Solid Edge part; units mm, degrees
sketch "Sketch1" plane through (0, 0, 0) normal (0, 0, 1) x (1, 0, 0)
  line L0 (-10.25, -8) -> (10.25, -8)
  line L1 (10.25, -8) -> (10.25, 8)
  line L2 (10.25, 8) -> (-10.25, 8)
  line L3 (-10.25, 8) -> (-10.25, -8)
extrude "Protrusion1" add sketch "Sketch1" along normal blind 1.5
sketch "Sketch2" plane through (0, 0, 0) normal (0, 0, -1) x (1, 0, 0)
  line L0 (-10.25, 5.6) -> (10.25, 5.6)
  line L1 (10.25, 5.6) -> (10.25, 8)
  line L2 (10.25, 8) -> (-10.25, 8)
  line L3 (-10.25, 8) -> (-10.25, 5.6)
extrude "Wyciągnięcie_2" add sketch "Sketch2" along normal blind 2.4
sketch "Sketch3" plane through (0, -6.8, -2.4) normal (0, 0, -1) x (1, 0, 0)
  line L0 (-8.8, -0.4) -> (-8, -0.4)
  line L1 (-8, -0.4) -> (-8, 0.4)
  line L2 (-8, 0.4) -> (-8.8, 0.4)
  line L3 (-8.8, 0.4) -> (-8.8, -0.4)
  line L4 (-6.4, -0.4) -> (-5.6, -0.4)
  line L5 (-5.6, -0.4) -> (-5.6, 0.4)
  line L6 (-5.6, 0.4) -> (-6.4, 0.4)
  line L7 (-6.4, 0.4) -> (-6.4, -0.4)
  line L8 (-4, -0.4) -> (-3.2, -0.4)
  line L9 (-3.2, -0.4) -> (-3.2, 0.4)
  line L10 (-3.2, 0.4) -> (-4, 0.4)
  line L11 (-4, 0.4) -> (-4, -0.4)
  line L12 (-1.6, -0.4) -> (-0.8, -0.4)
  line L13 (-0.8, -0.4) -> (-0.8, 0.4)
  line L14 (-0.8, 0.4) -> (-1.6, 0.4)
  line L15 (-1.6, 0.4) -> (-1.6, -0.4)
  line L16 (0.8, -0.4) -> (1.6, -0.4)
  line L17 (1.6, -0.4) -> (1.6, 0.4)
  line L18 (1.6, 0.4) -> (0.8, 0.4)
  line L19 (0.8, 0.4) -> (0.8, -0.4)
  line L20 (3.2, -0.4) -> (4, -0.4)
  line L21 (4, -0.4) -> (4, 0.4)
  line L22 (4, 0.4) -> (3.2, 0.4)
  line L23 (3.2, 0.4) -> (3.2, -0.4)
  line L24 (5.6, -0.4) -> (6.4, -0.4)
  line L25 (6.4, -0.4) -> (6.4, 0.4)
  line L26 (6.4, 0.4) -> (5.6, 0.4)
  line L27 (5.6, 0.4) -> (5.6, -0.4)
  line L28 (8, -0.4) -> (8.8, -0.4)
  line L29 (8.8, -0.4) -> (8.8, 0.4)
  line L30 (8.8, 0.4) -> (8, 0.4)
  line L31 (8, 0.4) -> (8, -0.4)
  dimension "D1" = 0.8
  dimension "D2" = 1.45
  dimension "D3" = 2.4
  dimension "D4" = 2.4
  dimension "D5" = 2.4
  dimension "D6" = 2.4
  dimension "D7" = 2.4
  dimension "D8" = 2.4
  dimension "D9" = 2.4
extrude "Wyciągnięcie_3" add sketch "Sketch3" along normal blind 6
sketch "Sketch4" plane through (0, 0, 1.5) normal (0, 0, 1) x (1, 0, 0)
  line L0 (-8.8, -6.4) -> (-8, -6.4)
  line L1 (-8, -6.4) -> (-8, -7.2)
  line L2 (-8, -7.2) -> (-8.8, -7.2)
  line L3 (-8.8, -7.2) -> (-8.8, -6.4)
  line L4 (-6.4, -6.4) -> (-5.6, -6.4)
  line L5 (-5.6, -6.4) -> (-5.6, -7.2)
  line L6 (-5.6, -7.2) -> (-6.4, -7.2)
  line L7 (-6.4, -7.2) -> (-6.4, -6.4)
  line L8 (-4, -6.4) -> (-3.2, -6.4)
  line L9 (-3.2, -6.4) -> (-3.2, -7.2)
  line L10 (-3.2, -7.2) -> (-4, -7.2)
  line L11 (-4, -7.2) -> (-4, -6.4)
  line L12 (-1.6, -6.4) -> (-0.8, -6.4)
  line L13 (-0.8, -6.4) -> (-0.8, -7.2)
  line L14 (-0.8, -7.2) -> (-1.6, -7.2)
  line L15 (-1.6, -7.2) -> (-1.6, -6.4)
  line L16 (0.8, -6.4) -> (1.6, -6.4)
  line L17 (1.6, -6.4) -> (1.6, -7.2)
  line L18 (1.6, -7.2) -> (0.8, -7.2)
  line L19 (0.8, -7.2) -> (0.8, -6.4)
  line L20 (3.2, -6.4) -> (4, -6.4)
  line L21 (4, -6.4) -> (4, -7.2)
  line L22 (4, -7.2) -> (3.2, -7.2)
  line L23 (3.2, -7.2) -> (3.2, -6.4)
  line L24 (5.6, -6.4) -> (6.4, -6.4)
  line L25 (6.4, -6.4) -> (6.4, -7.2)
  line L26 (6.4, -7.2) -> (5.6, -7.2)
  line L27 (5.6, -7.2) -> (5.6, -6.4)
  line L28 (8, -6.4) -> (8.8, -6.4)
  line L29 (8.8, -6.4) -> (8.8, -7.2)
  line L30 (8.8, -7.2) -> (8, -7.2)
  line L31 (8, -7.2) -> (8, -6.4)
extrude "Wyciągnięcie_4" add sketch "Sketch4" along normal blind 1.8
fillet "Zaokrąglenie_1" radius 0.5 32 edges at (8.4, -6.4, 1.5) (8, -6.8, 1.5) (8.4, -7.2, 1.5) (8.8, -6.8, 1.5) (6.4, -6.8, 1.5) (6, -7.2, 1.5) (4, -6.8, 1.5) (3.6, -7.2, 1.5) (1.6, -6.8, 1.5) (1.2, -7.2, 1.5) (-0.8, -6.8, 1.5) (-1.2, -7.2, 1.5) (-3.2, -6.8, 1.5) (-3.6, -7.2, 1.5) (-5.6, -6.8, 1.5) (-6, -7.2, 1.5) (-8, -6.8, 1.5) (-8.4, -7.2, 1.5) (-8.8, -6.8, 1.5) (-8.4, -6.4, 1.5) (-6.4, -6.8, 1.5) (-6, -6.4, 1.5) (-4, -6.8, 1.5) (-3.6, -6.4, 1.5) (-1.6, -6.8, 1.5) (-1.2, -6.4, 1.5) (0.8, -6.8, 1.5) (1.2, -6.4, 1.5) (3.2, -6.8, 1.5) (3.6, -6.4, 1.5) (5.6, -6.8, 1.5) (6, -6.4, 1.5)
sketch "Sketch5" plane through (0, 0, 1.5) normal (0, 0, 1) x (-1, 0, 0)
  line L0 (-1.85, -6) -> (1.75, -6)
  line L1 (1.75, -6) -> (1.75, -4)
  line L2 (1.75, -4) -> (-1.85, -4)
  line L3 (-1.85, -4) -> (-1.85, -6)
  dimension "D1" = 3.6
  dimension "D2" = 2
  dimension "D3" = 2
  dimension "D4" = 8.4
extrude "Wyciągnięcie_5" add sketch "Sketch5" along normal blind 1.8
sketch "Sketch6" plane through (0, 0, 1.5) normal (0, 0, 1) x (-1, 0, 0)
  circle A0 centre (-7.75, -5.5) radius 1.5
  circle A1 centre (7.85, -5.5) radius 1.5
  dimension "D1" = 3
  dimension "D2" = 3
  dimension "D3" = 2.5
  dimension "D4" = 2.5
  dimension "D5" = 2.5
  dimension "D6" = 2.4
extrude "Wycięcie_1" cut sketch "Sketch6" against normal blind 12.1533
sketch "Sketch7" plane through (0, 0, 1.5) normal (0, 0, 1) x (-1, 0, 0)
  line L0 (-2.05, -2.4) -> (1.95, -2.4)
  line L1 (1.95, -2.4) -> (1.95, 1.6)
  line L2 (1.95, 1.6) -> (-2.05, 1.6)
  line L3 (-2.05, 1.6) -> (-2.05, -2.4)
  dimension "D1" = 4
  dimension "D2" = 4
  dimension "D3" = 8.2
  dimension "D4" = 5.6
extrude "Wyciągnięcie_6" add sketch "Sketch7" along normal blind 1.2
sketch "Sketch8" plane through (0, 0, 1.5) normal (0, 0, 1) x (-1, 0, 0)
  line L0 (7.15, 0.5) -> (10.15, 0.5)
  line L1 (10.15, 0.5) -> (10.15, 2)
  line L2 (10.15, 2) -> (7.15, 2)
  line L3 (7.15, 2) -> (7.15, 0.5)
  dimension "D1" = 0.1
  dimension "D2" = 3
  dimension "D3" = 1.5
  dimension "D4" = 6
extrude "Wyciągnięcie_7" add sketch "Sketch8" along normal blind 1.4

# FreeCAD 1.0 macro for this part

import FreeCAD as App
import Part
import Sketcher
Q = App.Units.Quantity


def edges_at(feature, points):
    """Names of the edges that pass closest to the given points."""
    edges = feature.Shape.Edges
    near = lambda p: min(range(len(edges)), key=lambda i: edges[i].distToShape(Part.Vertex(*p))[0])
    return sorted({f"Edge{near(p) + 1}" for p in points})

doc = App.newDocument("Part")
params = doc.addObject("Spreadsheet::Sheet", "Params")
for row, (alias, value) in enumerate([
    ("sketch1_height", "16 mm"),
    ("sketch1_width", "20.5 mm"),
    ("pad1_length", "1.5 mm"),
    ("sketch2_width", "20.5 mm"),
    ("sketch2_height", "2.4 mm"),
    ("pad2_length", "2.4 mm"),
    ("sketch3_width", "0.8 mm"),
    ("pad3_length", "6 mm"),
    ("sketch4_width", "0.8 mm"),
    ("pad4_length", "1.8 mm"),
    ("fillet_radius", "0.5 mm"),
    ("sketch5_height", "2 mm"),
    ("pad5_length", "1.8 mm"),
    ("sketch6_diameter", "3 mm"),
    ("pocket1_length", "12.1533 mm"),
    ("sketch7_width", "4 mm"),
    ("pad6_length", "1.2 mm"),
    ("sketch8_width", "3 mm"),
    ("sketch8_height", "1.5 mm"),
    ("pad7_length", "1.4 mm"),
], start=1):
    params.set(f"A{row}", alias)
    params.set(f"B{row}", "=" + value)
    params.setAlias(f"B{row}", alias)

body = doc.addObject("PartDesign::Body", "Body")

sketch1 = body.newObject("Sketcher::SketchObject", "Sketch")
sketch1.AttachmentSupport = (doc.getObject("XY_Plane"), [""])
sketch1.MapMode = "FlatFace"
sketch1.addGeometry([
    Part.LineSegment(App.Vector(-10.25, 8, 0), App.Vector(-10.25, -8, 0)),
    Part.LineSegment(App.Vector(-10.25, -8, 0), App.Vector(10.25, -8, 0)),
    Part.LineSegment(App.Vector(10.25, -8, 0), App.Vector(10.25, 8, 0)),
    Part.LineSegment(App.Vector(10.25, 8, 0), App.Vector(-10.25, 8, 0)),
], False)
sketch1.addConstraint([
    Sketcher.Constraint("Coincident", 0, 2, 1, 1),
    Sketcher.Constraint("Coincident", 1, 2, 2, 1),
    Sketcher.Constraint("Coincident", 2, 2, 3, 1),
    Sketcher.Constraint("Coincident", 3, 2, 0, 1),
    Sketcher.Constraint("Vertical", 0),
    Sketcher.Constraint("Horizontal", 1),
    Sketcher.Constraint("Vertical", 2),
    Sketcher.Constraint("Horizontal", 3),
    Sketcher.Constraint("Symmetric", 0, 2, 2, 2, -1, 1),
    Sketcher.Constraint("DistanceY", 0, 2, 0, 1, Q("16 mm")),
    Sketcher.Constraint("DistanceX", 1, 1, 1, 2, Q("20.5 mm")),
])
sketch1.setExpression("Constraints[9]", "Params.sketch1_height")
sketch1.setExpression("Constraints[10]", "Params.sketch1_width")
pad1 = body.newObject("PartDesign::Pad", "Pad")
pad1.Profile = sketch1
pad1.setExpression("Length", "Params.pad1_length")

sketch2 = body.newObject("Sketcher::SketchObject", "Sketch001")
sketch2.AttachmentSupport = (doc.getObject("XY_Plane"), [""])
sketch2.MapMode = "FlatFace"
sketch2.addGeometry([
    Part.LineSegment(App.Vector(-10.25, -8, 0), App.Vector(-10.25, -5.6, 0)),
    Part.LineSegment(App.Vector(-10.25, -5.6, 0), App.Vector(10.25, -5.6, 0)),
    Part.LineSegment(App.Vector(10.25, -5.6, 0), App.Vector(10.25, -8, 0)),
    Part.LineSegment(App.Vector(10.25, -8, 0), App.Vector(-10.25, -8, 0)),
], False)
sketch2.addConstraint([
    Sketcher.Constraint("Coincident", 0, 2, 1, 1),
    Sketcher.Constraint("Coincident", 1, 2, 2, 1),
    Sketcher.Constraint("Coincident", 2, 2, 3, 1),
    Sketcher.Constraint("Coincident", 3, 2, 0, 1),
    Sketcher.Constraint("Vertical", 0),
    Sketcher.Constraint("Horizontal", 1),
    Sketcher.Constraint("Vertical", 2),
    Sketcher.Constraint("Horizontal", 3),
    Sketcher.Constraint("DistanceX", 1, 1, 1, 2, Q("20.5 mm")),
    Sketcher.Constraint("DistanceY", 0, 1, 0, 2, Q("2.4 mm")),
    Sketcher.Constraint("DistanceY", 2, 2, -1, 1, Q("8 mm")),
    Sketcher.Constraint("DistanceX", 0, 2, -1, 1, Q("10.25 mm")),
])
sketch2.setExpression("Constraints[8]", "Params.sketch2_width")
sketch2.setExpression("Constraints[9]", "Params.sketch2_height")
pad2 = body.newObject("PartDesign::Pad", "Pad001")
pad2.Profile = sketch2
pad2.setExpression("Length", "Params.pad2_length")
pad2.Reversed = True

sketch3 = body.newObject("Sketcher::SketchObject", "Sketch002")
sketch3.AttachmentSupport = (doc.getObject("XY_Plane"), [""])
sketch3.MapMode = "FlatFace"
sketch3.AttachmentOffset = App.Placement(App.Vector(0, 0, -2.4), App.Rotation())
sketch3.addGeometry([
    Part.LineSegment(App.Vector(-8.8, -7.2, 0), App.Vector(-8.8, -6.4, 0)),
    Part.LineSegment(App.Vector(-8.8, -6.4, 0), App.Vector(-8, -6.4, 0)),
    Part.LineSegment(App.Vector(-8, -6.4, 0), App.Vector(-8, -7.2, 0)),
    Part.LineSegment(App.Vector(-8, -7.2, 0), App.Vector(-8.8, -7.2, 0)),
    Part.LineSegment(App.Vector(-6.4, -7.2, 0), App.Vector(-6.4, -6.4, 0)),
    Part.LineSegment(App.Vector(-6.4, -6.4, 0), App.Vector(-5.6, -6.4, 0)),
    Part.LineSegment(App.Vector(-5.6, -6.4, 0), App.Vector(-5.6, -7.2, 0)),
    Part.LineSegment(App.Vector(-5.6, -7.2, 0), App.Vector(-6.4, -7.2, 0)),
    Part.LineSegment(App.Vector(-4, -7.2, 0), App.Vector(-4, -6.4, 0)),
    Part.LineSegment(App.Vector(-4, -6.4, 0), App.Vector(-3.2, -6.4, 0)),
    Part.LineSegment(App.Vector(-3.2, -6.4, 0), App.Vector(-3.2, -7.2, 0)),
    Part.LineSegment(App.Vector(-3.2, -7.2, 0), App.Vector(-4, -7.2, 0)),
    Part.LineSegment(App.Vector(-1.6, -7.2, 0), App.Vector(-1.6, -6.4, 0)),
    Part.LineSegment(App.Vector(-1.6, -6.4, 0), App.Vector(-0.8, -6.4, 0)),
    Part.LineSegment(App.Vector(-0.8, -6.4, 0), App.Vector(-0.8, -7.2, 0)),
    Part.LineSegment(App.Vector(-0.8, -7.2, 0), App.Vector(-1.6, -7.2, 0)),
    Part.LineSegment(App.Vector(0.8, -7.2, 0), App.Vector(0.8, -6.4, 0)),
    Part.LineSegment(App.Vector(0.8, -6.4, 0), App.Vector(1.6, -6.4, 0)),
    Part.LineSegment(App.Vector(1.6, -6.4, 0), App.Vector(1.6, -7.2, 0)),
    Part.LineSegment(App.Vector(1.6, -7.2, 0), App.Vector(0.8, -7.2, 0)),
    Part.LineSegment(App.Vector(3.2, -7.2, 0), App.Vector(3.2, -6.4, 0)),
    Part.LineSegment(App.Vector(3.2, -6.4, 0), App.Vector(4, -6.4, 0)),
    Part.LineSegment(App.Vector(4, -6.4, 0), App.Vector(4, -7.2, 0)),
    Part.LineSegment(App.Vector(4, -7.2, 0), App.Vector(3.2, -7.2, 0)),
    Part.LineSegment(App.Vector(5.6, -7.2, 0), App.Vector(5.6, -6.4, 0)),
    Part.LineSegment(App.Vector(5.6, -6.4, 0), App.Vector(6.4, -6.4, 0)),
    Part.LineSegment(App.Vector(6.4, -6.4, 0), App.Vector(6.4, -7.2, 0)),
    Part.LineSegment(App.Vector(6.4, -7.2, 0), App.Vector(5.6, -7.2, 0)),
    Part.LineSegment(App.Vector(8, -7.2, 0), App.Vector(8, -6.4, 0)),
    Part.LineSegment(App.Vector(8, -6.4, 0), App.Vector(8.8, -6.4, 0)),
    Part.LineSegment(App.Vector(8.8, -6.4, 0), App.Vector(8.8, -7.2, 0)),
    Part.LineSegment(App.Vector(8.8, -7.2, 0), App.Vector(8, -7.2, 0)),
], False)
sketch3.addConstraint([
    Sketcher.Constraint("Coincident", 0, 2, 1, 1),
    Sketcher.Constraint("Coincident", 1, 2, 2, 1),
    Sketcher.Constraint("Coincident", 2, 2, 3, 1),
    Sketcher.Constraint("Coincident", 3, 2, 0, 1),
    Sketcher.Constraint("Coincident", 4, 2, 5, 1),
    Sketcher.Constraint("Coincident", 5, 2, 6, 1),
    Sketcher.Constraint("Coincident", 6, 2, 7, 1),
    Sketcher.Constraint("Coincident", 7, 2, 4, 1),
    Sketcher.Constraint("Coincident", 8, 2, 9, 1),
    Sketcher.Constraint("Coincident", 9, 2, 10, 1),
    Sketcher.Constraint("Coincident", 10, 2, 11, 1),
    Sketcher.Constraint("Coincident", 11, 2, 8, 1),
    Sketcher.Constraint("Coincident", 12, 2, 13, 1),
    Sketcher.Constraint("Coincident", 13, 2, 14, 1),
    Sketcher.Constraint("Coincident", 14, 2, 15, 1),
    Sketcher.Constraint("Coincident", 15, 2, 12, 1),
    Sketcher.Constraint("Coincident", 16, 2, 17, 1),
    Sketcher.Constraint("Coincident", 17, 2, 18, 1),
    Sketcher.Constraint("Coincident", 18, 2, 19, 1),
    Sketcher.Constraint("Coincident", 19, 2, 16, 1),
    Sketcher.Constraint("Coincident", 20, 2, 21, 1),
    Sketcher.Constraint("Coincident", 21, 2, 22, 1),
    Sketcher.Constraint("Coincident", 22, 2, 23, 1),
    Sketcher.Constraint("Coincident", 23, 2, 20, 1),
    Sketcher.Constraint("Coincident", 24, 2, 25, 1),
    Sketcher.Constraint("Coincident", 25, 2, 26, 1),
    Sketcher.Constraint("Coincident", 26, 2, 27, 1),
    Sketcher.Constraint("Coincident", 27, 2, 24, 1),
    Sketcher.Constraint("Coincident", 28, 2, 29, 1),
    Sketcher.Constraint("Coincident", 29, 2, 30, 1),
    Sketcher.Constraint("Coincident", 30, 2, 31, 1),
    Sketcher.Constraint("Coincident", 31, 2, 28, 1),
    Sketcher.Constraint("Vertical", 0),
    Sketcher.Constraint("Horizontal", 1),
    Sketcher.Constraint("Vertical", 2),
    Sketcher.Constraint("Horizontal", 3),
    Sketcher.Constraint("Vertical", 4),
    Sketcher.Constraint("Horizontal", 5),
    Sketcher.Constraint("Vertical", 6),
    Sketcher.Constraint("Horizontal", 7),
    Sketcher.Constraint("Vertical", 8),
    Sketcher.Constraint("Horizontal", 9),
    Sketcher.Constraint("Vertical", 10),
    Sketcher.Constraint("Horizontal", 11),
    Sketcher.Constraint("Vertical", 12),
    Sketcher.Constraint("Horizontal", 13),
    Sketcher.Constraint("Vertical", 14),
    Sketcher.Constraint("Horizontal", 15),
    Sketcher.Constraint("Vertical", 16),
    Sketcher.Constraint("Horizontal", 17),
    Sketcher.Constraint("Vertical", 18),
    Sketcher.Constraint("Horizontal", 19),
    Sketcher.Constraint("Vertical", 20),
    Sketcher.Constraint("Horizontal", 21),
    Sketcher.Constraint("Vertical", 22),
    Sketcher.Constraint("Horizontal", 23),
    Sketcher.Constraint("Vertical", 24),
    Sketcher.Constraint("Horizontal", 25),
    Sketcher.Constraint("Vertical", 26),
    Sketcher.Constraint("Horizontal", 27),
    Sketcher.Constraint("Vertical", 28),
    Sketcher.Constraint("Horizontal", 29),
    Sketcher.Constraint("Vertical", 30),
    Sketcher.Constraint("Horizontal", 31),
    Sketcher.Constraint("Symmetric", 13, 2, 16, 2, -2),
    Sketcher.Constraint("Symmetric", 15, 2, 18, 2, -2),
    Sketcher.Constraint("Symmetric", 9, 2, 20, 2, -2),
    Sketcher.Constraint("Symmetric", 11, 2, 22, 2, -2),
    Sketcher.Constraint("Symmetric", 5, 2, 24, 2, -2),
    Sketcher.Constraint("Symmetric", 7, 2, 26, 2, -2),
    Sketcher.Constraint("Symmetric", 1, 2, 28, 2, -2),
    Sketcher.Constraint("Symmetric", 3, 2, 30, 2, -2),
    Sketcher.Constraint("Horizontal", 1, 2, 4, 2),
    Sketcher.Constraint("Horizontal", 3, 2, 6, 2),
    Sketcher.Constraint("Horizontal", 5, 2, 8, 2),
    Sketcher.Constraint("Horizontal", 7, 2, 10, 2),
    Sketcher.Constraint("Horizontal", 9, 2, 12, 2),
    Sketcher.Constraint("Horizontal", 11, 2, 14, 2),
    Sketcher.Constraint("Equal", 3, 5),
    Sketcher.Constraint("Equal", 7, 9),
    Sketcher.Constraint("Equal", 11, 13),
    Sketcher.Constraint("Equal", 31, 0),
    Sketcher.Constraint("DistanceX", 1, 1, 1, 2, Q("0.8 mm")),
    Sketcher.Constraint("DistanceX", 1, 2, -1, 1, Q("8 mm")),
    Sketcher.Constraint("DistanceX", 8, 2, -1, 1, Q("4 mm")),
    Sketcher.Constraint("DistanceX", 5, 2, 12, 2, Q("4 mm")),
    Sketcher.Constraint("DistanceX", 9, 2, 16, 2, Q("4 mm")),
    Sketcher.Constraint("DistanceY", 0, 2, -1, 1, Q("6.4 mm")),
])
sketch3.setExpression("Constraints[82]", "Params.sketch3_width")
pad3 = body.newObject("PartDesign::Pad", "Pad002")
pad3.Profile = sketch3
pad3.setExpression("Length", "Params.pad3_length")
pad3.Reversed = True

sketch4 = body.newObject("Sketcher::SketchObject", "Sketch003")
sketch4.AttachmentSupport = (doc.getObject("XY_Plane"), [""])
sketch4.MapMode = "FlatFace"
sketch4.AttachmentOffset = App.Placement(App.Vector(0, 0, 1.5), App.Rotation())
sketch4.addGeometry([
    Part.LineSegment(App.Vector(-8, -6.4, 0), App.Vector(-8.8, -6.4, 0)),
    Part.LineSegment(App.Vector(-8.8, -6.4, 0), App.Vector(-8.8, -7.2, 0)),
    Part.LineSegment(App.Vector(-8.8, -7.2, 0), App.Vector(-8, -7.2, 0)),
    Part.LineSegment(App.Vector(-8, -7.2, 0), App.Vector(-8, -6.4, 0)),
    Part.LineSegment(App.Vector(-5.6, -6.4, 0), App.Vector(-6.4, -6.4, 0)),
    Part.LineSegment(App.Vector(-6.4, -6.4, 0), App.Vector(-6.4, -7.2, 0)),
    Part.LineSegment(App.Vector(-6.4, -7.2, 0), App.Vector(-5.6, -7.2, 0)),
    Part.LineSegment(App.Vector(-5.6, -7.2, 0), App.Vector(-5.6, -6.4, 0)),
    Part.LineSegment(App.Vector(-3.2, -6.4, 0), App.Vector(-4, -6.4, 0)),
    Part.LineSegment(App.Vector(-4, -6.4, 0), App.Vector(-4, -7.2, 0)),
    Part.LineSegment(App.Vector(-4, -7.2, 0), App.Vector(-3.2, -7.2, 0)),
    Part.LineSegment(App.Vector(-3.2, -7.2, 0), App.Vector(-3.2, -6.4, 0)),
    Part.LineSegment(App.Vector(-0.8, -6.4, 0), App.Vector(-1.6, -6.4, 0)),
    Part.LineSegment(App.Vector(-1.6, -6.4, 0), App.Vector(-1.6, -7.2, 0)),
    Part.LineSegment(App.Vector(-1.6, -7.2, 0), App.Vector(-0.8, -7.2, 0)),
    Part.LineSegment(App.Vector(-0.8, -7.2, 0), App.Vector(-0.8, -6.4, 0)),
    Part.LineSegment(App.Vector(1.6, -6.4, 0), App.Vector(0.8, -6.4, 0)),
    Part.LineSegment(App.Vector(0.8, -6.4, 0), App.Vector(0.8, -7.2, 0)),
    Part.LineSegment(App.Vector(0.8, -7.2, 0), App.Vector(1.6, -7.2, 0)),
    Part.LineSegment(App.Vector(1.6, -7.2, 0), App.Vector(1.6, -6.4, 0)),
    Part.LineSegment(App.Vector(4, -6.4, 0), App.Vector(3.2, -6.4, 0)),
    Part.LineSegment(App.Vector(3.2, -6.4, 0), App.Vector(3.2, -7.2, 0)),
    Part.LineSegment(App.Vector(3.2, -7.2, 0), App.Vector(4, -7.2, 0)),
    Part.LineSegment(App.Vector(4, -7.2, 0), App.Vector(4, -6.4, 0)),
    Part.LineSegment(App.Vector(6.4, -6.4, 0), App.Vector(5.6, -6.4, 0)),
    Part.LineSegment(App.Vector(5.6, -6.4, 0), App.Vector(5.6, -7.2, 0)),
    Part.LineSegment(App.Vector(5.6, -7.2, 0), App.Vector(6.4, -7.2, 0)),
    Part.LineSegment(App.Vector(6.4, -7.2, 0), App.Vector(6.4, -6.4, 0)),
    Part.LineSegment(App.Vector(8.8, -6.4, 0), App.Vector(8, -6.4, 0)),
    Part.LineSegment(App.Vector(8, -6.4, 0), App.Vector(8, -7.2, 0)),
    Part.LineSegment(App.Vector(8, -7.2, 0), App.Vector(8.8, -7.2, 0)),
    Part.LineSegment(App.Vector(8.8, -7.2, 0), App.Vector(8.8, -6.4, 0)),
], False)
sketch4.addConstraint([
    Sketcher.Constraint("Coincident", 0, 2, 1, 1),
    Sketcher.Constraint("Coincident", 1, 2, 2, 1),
    Sketcher.Constraint("Coincident", 2, 2, 3, 1),
    Sketcher.Constraint("Coincident", 3, 2, 0, 1),
    Sketcher.Constraint("Coincident", 4, 2, 5, 1),
    Sketcher.Constraint("Coincident", 5, 2, 6, 1),
    Sketcher.Constraint("Coincident", 6, 2, 7, 1),
    Sketcher.Constraint("Coincident", 7, 2, 4, 1),
    Sketcher.Constraint("Coincident", 8, 2, 9, 1),
    Sketcher.Constraint("Coincident", 9, 2, 10, 1),
    Sketcher.Constraint("Coincident", 10, 2, 11, 1),
    Sketcher.Constraint("Coincident", 11, 2, 8, 1),
    Sketcher.Constraint("Coincident", 12, 2, 13, 1),
    Sketcher.Constraint("Coincident", 13, 2, 14, 1),
    Sketcher.Constraint("Coincident", 14, 2, 15, 1),
    Sketcher.Constraint("Coincident", 15, 2, 12, 1),
    Sketcher.Constraint("Coincident", 16, 2, 17, 1),
    Sketcher.Constraint("Coincident", 17, 2, 18, 1),
    Sketcher.Constraint("Coincident", 18, 2, 19, 1),
    Sketcher.Constraint("Coincident", 19, 2, 16, 1),
    Sketcher.Constraint("Coincident", 20, 2, 21, 1),
    Sketcher.Constraint("Coincident", 21, 2, 22, 1),
    Sketcher.Constraint("Coincident", 22, 2, 23, 1),
    Sketcher.Constraint("Coincident", 23, 2, 20, 1),
    Sketcher.Constraint("Coincident", 24, 2, 25, 1),
    Sketcher.Constraint("Coincident", 25, 2, 26, 1),
    Sketcher.Constraint("Coincident", 26, 2, 27, 1),
    Sketcher.Constraint("Coincident", 27, 2, 24, 1),
    Sketcher.Constraint("Coincident", 28, 2, 29, 1),
    Sketcher.Constraint("Coincident", 29, 2, 30, 1),
    Sketcher.Constraint("Coincident", 30, 2, 31, 1),
    Sketcher.Constraint("Coincident", 31, 2, 28, 1),
    Sketcher.Constraint("Horizontal", 0),
    Sketcher.Constraint("Vertical", 1),
    Sketcher.Constraint("Horizontal", 2),
    Sketcher.Constraint("Vertical", 3),
    Sketcher.Constraint("Horizontal", 4),
    Sketcher.Constraint("Vertical", 5),
    Sketcher.Constraint("Horizontal", 6),
    Sketcher.Constraint("Vertical", 7),
    Sketcher.Constraint("Horizontal", 8),
    Sketcher.Constraint("Vertical", 9),
    Sketcher.Constraint("Horizontal", 10),
    Sketcher.Constraint("Vertical", 11),
    Sketcher.Constraint("Horizontal", 12),
    Sketcher.Constraint("Vertical", 13),
    Sketcher.Constraint("Horizontal", 14),
    Sketcher.Constraint("Vertical", 15),
    Sketcher.Constraint("Horizontal", 16),
    Sketcher.Constraint("Vertical", 17),
    Sketcher.Constraint("Horizontal", 18),
    Sketcher.Constraint("Vertical", 19),
    Sketcher.Constraint("Horizontal", 20),
    Sketcher.Constraint("Vertical", 21),
    Sketcher.Constraint("Horizontal", 22),
    Sketcher.Constraint("Vertical", 23),
    Sketcher.Constraint("Horizontal", 24),
    Sketcher.Constraint("Vertical", 25),
    Sketcher.Constraint("Horizontal", 26),
    Sketcher.Constraint("Vertical", 27),
    Sketcher.Constraint("Horizontal", 28),
    Sketcher.Constraint("Vertical", 29),
    Sketcher.Constraint("Horizontal", 30),
    Sketcher.Constraint("Vertical", 31),
    Sketcher.Constraint("Symmetric", 15, 2, 16, 2, -2),
    Sketcher.Constraint("Symmetric", 13, 2, 18, 2, -2),
    Sketcher.Constraint("Symmetric", 11, 2, 20, 2, -2),
    Sketcher.Constraint("Symmetric", 9, 2, 22, 2, -2),
    Sketcher.Constraint("Symmetric", 7, 2, 24, 2, -2),
    Sketcher.Constraint("Symmetric", 5, 2, 26, 2, -2),
    Sketcher.Constraint("Symmetric", 3, 2, 28, 2, -2),
    Sketcher.Constraint("Symmetric", 1, 2, 30, 2, -2),
    Sketcher.Constraint("Horizontal", 3, 2, 4, 2),
    Sketcher.Constraint("Horizontal", 2, 2, 5, 2),
    Sketcher.Constraint("Horizontal", 7, 2, 8, 2),
    Sketcher.Constraint("Horizontal", 6, 2, 9, 2),
    Sketcher.Constraint("Horizontal", 11, 2, 12, 2),
    Sketcher.Constraint("Horizontal", 10, 2, 13, 2),
    Sketcher.Constraint("Equal", 2, 4),
    Sketcher.Constraint("Equal", 6, 8),
    Sketcher.Constraint("Equal", 10, 12),
    Sketcher.Constraint("Equal", 30, 1),
    Sketcher.Constraint("DistanceX", 0, 2, 0, 1, Q("0.8 mm")),
    Sketcher.Constraint("DistanceX", 2, 2, -1, 1, Q("8 mm")),
    Sketcher.Constraint("DistanceX", 8, 2, -1, 1, Q("4 mm")),
    Sketcher.Constraint("DistanceX", 7, 2, 12, 2, Q("4 mm")),
    Sketcher.Constraint("DistanceX", 11, 2, 16, 2, Q("4 mm")),
    Sketcher.Constraint("DistanceY", 0, 2, -1, 1, Q("6.4 mm")),
])
sketch4.setExpression("Constraints[82]", "Params.sketch4_width")
pad4 = body.newObject("PartDesign::Pad", "Pad003")
pad4.Profile = sketch4
pad4.setExpression("Length", "Params.pad4_length")
doc.recompute()

fillet = body.newObject("PartDesign::Fillet", "Fillet")
fillet.Base = (pad4, edges_at(pad4, [
    (8.4, -6.4, 1.5),
    (8, -6.8, 1.5),
    (8.4, -7.2, 1.5),
    (8.8, -6.8, 1.5),
    (6.4, -6.8, 1.5),
    (6, -7.2, 1.5),
    (4, -6.8, 1.5),
    (3.6, -7.2, 1.5),
    (1.6, -6.8, 1.5),
    (1.2, -7.2, 1.5),
    (-0.8, -6.8, 1.5),
    (-1.2, -7.2, 1.5),
    (-3.2, -6.8, 1.5),
    (-3.6, -7.2, 1.5),
    (-5.6, -6.8, 1.5),
    (-6, -7.2, 1.5),
    (-8, -6.8, 1.5),
    (-8.4, -7.2, 1.5),
    (-8.8, -6.8, 1.5),
    (-8.4, -6.4, 1.5),
    (-6.4, -6.8, 1.5),
    (-6, -6.4, 1.5),
    (-4, -6.8, 1.5),
    (-3.6, -6.4, 1.5),
    (-1.6, -6.8, 1.5),
    (-1.2, -6.4, 1.5),
    (0.8, -6.8, 1.5),
    (1.2, -6.4, 1.5),
    (3.2, -6.8, 1.5),
    (3.6, -6.4, 1.5),
    (5.6, -6.8, 1.5),
    (6, -6.4, 1.5),
]))
fillet.setExpression("Radius", "Params.fillet_radius")

sketch5 = body.newObject("Sketcher::SketchObject", "Sketch004")
sketch5.AttachmentSupport = (doc.getObject("XY_Plane"), [""])
sketch5.MapMode = "FlatFace"
sketch5.AttachmentOffset = App.Placement(App.Vector(0, 0, 1.5), App.Rotation())
sketch5.addGeometry([
    Part.LineSegment(App.Vector(1.85, 4, 0), App.Vector(1.85, 6, 0)),
    Part.LineSegment(App.Vector(1.85, 6, 0), App.Vector(-1.75, 6, 0)),
    Part.LineSegment(App.Vector(-1.75, 6, 0), App.Vector(-1.75, 4, 0)),
    Part.LineSegment(App.Vector(-1.75, 4, 0), App.Vector(1.85, 4, 0)),
], False)
sketch5.addConstraint([
    Sketcher.Constraint("Coincident", 0, 2, 1, 1),
    Sketcher.Constraint("Coincident", 1, 2, 2, 1),
    Sketcher.Constraint("Coincident", 2, 2, 3, 1),
    Sketcher.Constraint("Coincident", 3, 2, 0, 1),
    Sketcher.Constraint("Vertical", 0),
    Sketcher.Constraint("Horizontal", 1),
    Sketcher.Constraint("Vertical", 2),
    Sketcher.Constraint("Horizontal", 3),
    Sketcher.Constraint("DistanceY", 0, 1, 0, 2, Q("2 mm")),
    Sketcher.Constraint("DistanceX", -1, 1, 0, 2, Q("1.85 mm")),
    Sketcher.Constraint("DistanceX", 1, 2, -1, 1, Q("1.75 mm")),
    Sketcher.Constraint("DistanceY", -1, 1, 0, 2, Q("6 mm")),
])
sketch5.setExpression("Constraints[8]", "Params.sketch5_height")
pad5 = body.newObject("PartDesign::Pad", "Pad004")
pad5.Profile = sketch5
pad5.setExpression("Length", "Params.pad5_length")

sketch6 = body.newObject("Sketcher::SketchObject", "Sketch005")
sketch6.AttachmentSupport = (doc.getObject("XY_Plane"), [""])
sketch6.MapMode = "FlatFace"
sketch6.AttachmentOffset = App.Placement(App.Vector(0, 0, 1.5), App.Rotation())
sketch6.addGeometry([
    Part.Circle(App.Vector(7.75, 5.5, 0), App.Vector(0, 0, 1), 1.5),
    Part.Circle(App.Vector(-7.85, 5.5, 0), App.Vector(0, 0, 1), 1.5),
], False)
sketch6.addConstraint([
    Sketcher.Constraint("Equal", 0, 1),
    Sketcher.Constraint("Horizontal", 0, 3, 1, 3),
    Sketcher.Constraint("Diameter", 0, Q("3 mm")),
    Sketcher.Constraint("DistanceX", -1, 1, 0, 3, Q("7.75 mm")),
    Sketcher.Constraint("DistanceY", -1, 1, 0, 3, Q("5.5 mm")),
    Sketcher.Constraint("DistanceX", 1, 3, 0, 3, Q("15.6 mm")),
])
sketch6.setExpression("Constraints[2]", "Params.sketch6_diameter")
pocket1 = body.newObject("PartDesign::Pocket", "Pocket")
pocket1.Profile = sketch6
pocket1.setExpression("Length", "Params.pocket1_length")

sketch7 = body.newObject("Sketcher::SketchObject", "Sketch006")
sketch7.AttachmentSupport = (doc.getObject("XY_Plane"), [""])
sketch7.MapMode = "FlatFace"
sketch7.AttachmentOffset = App.Placement(App.Vector(0, 0, 1.5), App.Rotation())
sketch7.addGeometry([
    Part.LineSegment(App.Vector(2.05, -1.6, 0), App.Vector(2.05, 2.4, 0)),
    Part.LineSegment(App.Vector(2.05, 2.4, 0), App.Vector(-1.95, 2.4, 0)),
    Part.LineSegment(App.Vector(-1.95, 2.4, 0), App.Vector(-1.95, -1.6, 0)),
    Part.LineSegment(App.Vector(-1.95, -1.6, 0), App.Vector(2.05, -1.6, 0)),
], False)
sketch7.addConstraint([
    Sketcher.Constraint("Coincident", 0, 2, 1, 1),
    Sketcher.Constraint("Coincident", 1, 2, 2, 1),
    Sketcher.Constraint("Coincident", 2, 2, 3, 1),
    Sketcher.Constraint("Coincident", 3, 2, 0, 1),
    Sketcher.Constraint("Vertical", 0),
    Sketcher.Constraint("Horizontal", 1),
    Sketcher.Constraint("Vertical", 2),
    Sketcher.Constraint("Horizontal", 3),
    Sketcher.Constraint("Equal", 3, 0),
    Sketcher.Constraint("DistanceX", 1, 2, 1, 1, Q("4 mm")),
    Sketcher.Constraint("DistanceX", -1, 1, 0, 2, Q("2.05 mm")),
    Sketcher.Constraint("DistanceY", -1, 1, 0, 2, Q("2.4 mm")),
])
sketch7.setExpression("Constraints[9]", "Params.sketch7_width")
pad6 = body.newObject("PartDesign::Pad", "Pad005")
pad6.Profile = sketch7
pad6.setExpression("Length", "Params.pad6_length")

sketch8 = body.newObject("Sketcher::SketchObject", "Sketch007")
sketch8.AttachmentSupport = (doc.getObject("XY_Plane"), [""])
sketch8.MapMode = "FlatFace"
sketch8.AttachmentOffset = App.Placement(App.Vector(0, 0, 1.5), App.Rotation())
sketch8.addGeometry([
    Part.LineSegment(App.Vector(-7.15, -2, 0), App.Vector(-7.15, -0.5, 0)),
    Part.LineSegment(App.Vector(-7.15, -0.5, 0), App.Vector(-10.15, -0.5, 0)),
    Part.LineSegment(App.Vector(-10.15, -0.5, 0), App.Vector(-10.15, -2, 0)),
    Part.LineSegment(App.Vector(-10.15, -2, 0), App.Vector(-7.15, -2, 0)),
], False)
sketch8.addConstraint([
    Sketcher.Constraint("Coincident", 0, 2, 1, 1),
    Sketcher.Constraint("Coincident", 1, 2, 2, 1),
    Sketcher.Constraint("Coincident", 2, 2, 3, 1),
    Sketcher.Constraint("Coincident", 3, 2, 0, 1),
    Sketcher.Constraint("Vertical", 0),
    Sketcher.Constraint("Horizontal", 1),
    Sketcher.Constraint("Vertical", 2),
    Sketcher.Constraint("Horizontal", 3),
    Sketcher.Constraint("DistanceX", 1, 2, 1, 1, Q("3 mm")),
    Sketcher.Constraint("DistanceY", 0, 1, 0, 2, Q("1.5 mm")),
    Sketcher.Constraint("DistanceY", 2, 2, -1, 1, Q("2 mm")),
    Sketcher.Constraint("DistanceX", 0, 2, -1, 1, Q("7.15 mm")),
])
sketch8.setExpression("Constraints[8]", "Params.sketch8_width")
sketch8.setExpression("Constraints[9]", "Params.sketch8_height")
pad7 = body.newObject("PartDesign::Pad", "Pad006")
pad7.Profile = sketch8
pad7.setExpression("Length", "Params.pad7_length")

doc.recompute()
